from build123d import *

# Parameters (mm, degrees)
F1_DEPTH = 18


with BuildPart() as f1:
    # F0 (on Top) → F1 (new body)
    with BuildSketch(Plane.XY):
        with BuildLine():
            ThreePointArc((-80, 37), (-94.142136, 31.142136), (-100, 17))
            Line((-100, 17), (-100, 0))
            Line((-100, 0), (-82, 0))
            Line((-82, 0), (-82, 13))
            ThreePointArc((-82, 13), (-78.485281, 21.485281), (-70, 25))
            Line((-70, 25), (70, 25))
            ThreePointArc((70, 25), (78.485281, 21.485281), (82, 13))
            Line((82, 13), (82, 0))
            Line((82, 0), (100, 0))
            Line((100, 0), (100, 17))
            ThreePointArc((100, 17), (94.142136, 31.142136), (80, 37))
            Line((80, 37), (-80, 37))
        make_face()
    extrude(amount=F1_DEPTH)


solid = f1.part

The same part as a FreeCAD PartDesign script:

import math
import FreeCAD as App
import Part
import Sketcher

V = App.Vector
Q = App.Units.Quantity

doc = App.newDocument("Part")
body = doc.addObject("PartDesign::Body", "Body")

sketch1 = body.newObject("Sketcher::SketchObject", "Sketch")
sketch1.AttachmentSupport = (doc.getObject("XY_Plane"), [""])
sketch1.MapMode = "FlatFace"
sketch1.addGeometry(Part.ArcOfCircle(Part.Circle(V(-80, 17, 0), V(0, 0, 1), 20), math.radians(90), math.radians(180)), False)
sketch1.addGeometry(Part.LineSegment(V(-100, 17, 0), V(-100, 0, 0)), False)
sketch1.addGeometry(Part.LineSegment(V(-100, 0, 0), V(-82, 0, 0)), False)
sketch1.addGeometry(Part.LineSegment(V(-82, 0, 0), V(-82, 13, 0)), False)
sketch1.addGeometry(Part.ArcOfCircle(Part.Circle(V(-70, 13, 0), V(0, 0, 1), 12), math.radians(90), math.radians(180)), False)
sketch1.addGeometry(Part.LineSegment(V(-70, 25, 0), V(70, 25, 0)), False)
sketch1.addGeometry(Part.ArcOfCircle(Part.Circle(V(70, 13, 0), V(0, 0, 1), 12), math.radians(0), math.radians(90)), False)
sketch1.addGeometry(Part.LineSegment(V(82, 13, 0), V(82, 0, 0)), False)
sketch1.addGeometry(Part.LineSegment(V(82, 0, 0), V(100, 0, 0)), False)
sketch1.addGeometry(Part.LineSegment(V(100, 0, 0), V(100, 17, 0)), False)
sketch1.addGeometry(Part.ArcOfCircle(Part.Circle(V(80, 17, 0), V(0, 0, 1), 20), math.radians(0), math.radians(90)), False)
sketch1.addGeometry(Part.LineSegment(V(80, 37, 0), V(-80, 37, 0)), False)
sketch1.addConstraint(Sketcher.Constraint("Tangent", 0, 2, 1, 1))
sketch1.addConstraint(Sketcher.Constraint("Coincident", 1, 2, 2, 1))
sketch1.addConstraint(Sketcher.Constraint("Coincident", 2, 2, 3, 1))
sketch1.addConstraint(Sketcher.Constraint("Tangent", 3, 2, 4, 2))
sketch1.addConstraint(Sketcher.Constraint("Tangent", 4, 1, 5, 1))
sketch1.addConstraint(Sketcher.Constraint("Tangent", 5, 2, 6, 2))
sketch1.addConstraint(Sketcher.Constraint("Tangent", 6, 1, 7, 1))
sketch1.addConstraint(Sketcher.Constraint("Coincident", 7, 2, 8, 1))
sketch1.addConstraint(Sketcher.Constraint("Coincident", 8, 2, 9, 1))
sketch1.addConstraint(Sketcher.Constraint("Tangent", 9, 2, 10, 1))
sketch1.addConstraint(Sketcher.Constraint("Tangent", 10, 2, 11, 1))
sketch1.addConstraint(Sketcher.Constraint("Tangent", 11, 2, 0, 1))
sketch1.addConstraint(Sketcher.Constraint("Vertical", 1))
sketch1.addConstraint(Sketcher.Constraint("Horizontal", 2))
sketch1.addConstraint(Sketcher.Constraint("Vertical", 3))
sketch1.addConstraint(Sketcher.Constraint("Horizontal", 5))
sketch1.addConstraint(Sketcher.Constraint("Vertical", 7))
sketch1.addConstraint(Sketcher.Constraint("Horizontal", 8))
sketch1.addConstraint(Sketcher.Constraint("Vertical", 9))
sketch1.addConstraint(Sketcher.Constraint("Horizontal", 11))
sketch1.addConstraint(Sketcher.Constraint("Equal", 4, 6))
sketch1.addConstraint(Sketcher.Constraint("Equal", 0, 10))
sketch1.addConstraint(Sketcher.Constraint("Symmetric", 2, 2, 7, 2, -1, 1))
sketch1.addConstraint(Sketcher.Constraint("Symmetric", 1, 2, 8, 2, -2))
sketch1.addConstraint(Sketcher.Constraint("Radius", 0, Q("19.999999 mm")))
sketch1.addConstraint(Sketcher.Constraint("Radius", 4, Q("12.000001 mm")))
sketch1.addConstraint(Sketcher.Constraint("DistanceX", 2, 1, 2, 2, Q("18 mm")))
sketch1.addConstraint(Sketcher.Constraint("DistanceX", 5, 1, 5, 2, Q("140 mm")))
sketch1.addConstraint(Sketcher.Constraint("DistanceY", 1, 2, 1, 1, Q("17 mm")))
sketch1.addConstraint(Sketcher.Constraint("DistanceY", 3, 1, 3, 2, Q("13 mm")))
pad1 = body.newObject("PartDesign::Pad", "Pad")
pad1.Profile = sketch1
pad1.Length = 18

doc.recompute()
